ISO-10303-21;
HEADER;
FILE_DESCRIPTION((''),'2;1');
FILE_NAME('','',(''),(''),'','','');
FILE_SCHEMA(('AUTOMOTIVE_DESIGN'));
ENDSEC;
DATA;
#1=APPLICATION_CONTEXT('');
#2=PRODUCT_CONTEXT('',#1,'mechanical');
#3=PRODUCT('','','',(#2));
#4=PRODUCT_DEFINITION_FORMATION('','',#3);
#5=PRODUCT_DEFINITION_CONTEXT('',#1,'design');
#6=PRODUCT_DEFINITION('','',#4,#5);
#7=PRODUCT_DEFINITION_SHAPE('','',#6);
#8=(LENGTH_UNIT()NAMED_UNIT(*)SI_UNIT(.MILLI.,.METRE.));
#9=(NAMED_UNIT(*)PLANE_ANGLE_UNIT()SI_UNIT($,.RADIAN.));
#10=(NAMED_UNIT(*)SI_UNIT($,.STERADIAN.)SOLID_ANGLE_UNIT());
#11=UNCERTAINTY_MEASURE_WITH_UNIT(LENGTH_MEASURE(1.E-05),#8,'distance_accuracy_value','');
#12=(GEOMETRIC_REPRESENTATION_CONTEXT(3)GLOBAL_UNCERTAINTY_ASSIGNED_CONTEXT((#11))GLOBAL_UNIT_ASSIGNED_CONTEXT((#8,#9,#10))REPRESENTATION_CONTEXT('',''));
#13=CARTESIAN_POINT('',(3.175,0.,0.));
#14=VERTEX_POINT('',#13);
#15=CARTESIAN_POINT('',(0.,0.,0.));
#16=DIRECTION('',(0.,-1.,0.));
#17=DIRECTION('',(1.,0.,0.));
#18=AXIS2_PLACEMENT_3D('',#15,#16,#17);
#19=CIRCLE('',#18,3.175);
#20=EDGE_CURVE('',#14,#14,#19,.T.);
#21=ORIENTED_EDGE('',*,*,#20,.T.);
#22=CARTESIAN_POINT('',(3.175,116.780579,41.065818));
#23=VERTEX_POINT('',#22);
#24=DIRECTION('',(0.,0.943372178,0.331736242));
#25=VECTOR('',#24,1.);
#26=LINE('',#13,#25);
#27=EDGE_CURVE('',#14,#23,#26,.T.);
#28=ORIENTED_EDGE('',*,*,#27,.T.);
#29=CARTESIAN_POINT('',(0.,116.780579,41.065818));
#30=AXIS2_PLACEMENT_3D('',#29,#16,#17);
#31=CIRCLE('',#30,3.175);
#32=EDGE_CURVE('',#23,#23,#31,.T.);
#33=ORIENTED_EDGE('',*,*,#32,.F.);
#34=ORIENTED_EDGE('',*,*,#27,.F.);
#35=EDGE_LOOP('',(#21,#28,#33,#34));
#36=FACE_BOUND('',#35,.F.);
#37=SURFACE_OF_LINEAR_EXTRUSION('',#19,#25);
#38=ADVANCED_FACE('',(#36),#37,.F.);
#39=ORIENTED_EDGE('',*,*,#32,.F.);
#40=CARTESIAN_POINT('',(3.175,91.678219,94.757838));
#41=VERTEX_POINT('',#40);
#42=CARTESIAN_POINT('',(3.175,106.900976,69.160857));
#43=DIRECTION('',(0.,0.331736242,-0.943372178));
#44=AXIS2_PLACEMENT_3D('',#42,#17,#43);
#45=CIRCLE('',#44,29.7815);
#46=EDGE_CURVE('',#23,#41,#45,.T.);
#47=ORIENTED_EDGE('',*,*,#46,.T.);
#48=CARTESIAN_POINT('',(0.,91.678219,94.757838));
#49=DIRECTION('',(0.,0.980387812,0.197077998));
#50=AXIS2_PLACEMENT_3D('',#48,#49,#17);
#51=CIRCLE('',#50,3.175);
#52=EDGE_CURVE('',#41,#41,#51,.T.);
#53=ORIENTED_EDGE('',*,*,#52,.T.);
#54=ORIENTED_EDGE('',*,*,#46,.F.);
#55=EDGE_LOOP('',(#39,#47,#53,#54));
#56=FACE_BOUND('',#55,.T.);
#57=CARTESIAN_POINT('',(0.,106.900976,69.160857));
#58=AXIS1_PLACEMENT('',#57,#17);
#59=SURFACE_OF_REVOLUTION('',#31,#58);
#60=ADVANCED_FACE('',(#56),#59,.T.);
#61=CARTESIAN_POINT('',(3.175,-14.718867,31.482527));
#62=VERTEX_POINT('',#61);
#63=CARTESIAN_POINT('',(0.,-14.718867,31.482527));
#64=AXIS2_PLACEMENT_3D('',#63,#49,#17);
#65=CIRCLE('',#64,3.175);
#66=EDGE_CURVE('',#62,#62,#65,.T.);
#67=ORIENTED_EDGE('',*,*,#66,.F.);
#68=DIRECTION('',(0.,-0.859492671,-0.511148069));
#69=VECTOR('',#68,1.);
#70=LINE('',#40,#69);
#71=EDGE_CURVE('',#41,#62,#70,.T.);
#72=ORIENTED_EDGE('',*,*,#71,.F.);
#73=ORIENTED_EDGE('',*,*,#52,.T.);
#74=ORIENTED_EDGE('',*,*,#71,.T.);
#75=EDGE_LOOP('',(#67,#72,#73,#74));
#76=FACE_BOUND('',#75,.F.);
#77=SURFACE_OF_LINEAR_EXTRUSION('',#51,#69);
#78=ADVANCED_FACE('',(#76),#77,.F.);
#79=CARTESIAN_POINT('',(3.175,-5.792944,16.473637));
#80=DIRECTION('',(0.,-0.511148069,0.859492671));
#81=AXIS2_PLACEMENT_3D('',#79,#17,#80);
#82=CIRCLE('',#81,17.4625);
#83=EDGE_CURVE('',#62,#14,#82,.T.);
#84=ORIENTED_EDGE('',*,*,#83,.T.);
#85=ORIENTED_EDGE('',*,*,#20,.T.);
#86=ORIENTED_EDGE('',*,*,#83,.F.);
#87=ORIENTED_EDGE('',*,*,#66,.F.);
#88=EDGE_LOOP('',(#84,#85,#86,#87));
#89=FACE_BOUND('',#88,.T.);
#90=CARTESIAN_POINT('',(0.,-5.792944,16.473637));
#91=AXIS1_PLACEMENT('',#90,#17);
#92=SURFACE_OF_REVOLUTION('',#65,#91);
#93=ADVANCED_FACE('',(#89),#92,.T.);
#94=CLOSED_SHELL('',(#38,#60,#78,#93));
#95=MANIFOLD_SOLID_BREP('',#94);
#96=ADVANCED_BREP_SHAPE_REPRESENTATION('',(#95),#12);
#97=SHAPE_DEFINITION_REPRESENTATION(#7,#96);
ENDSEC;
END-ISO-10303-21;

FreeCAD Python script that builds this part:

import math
import FreeCAD as App
import Part
import Sketcher

V = App.Vector
Q = App.Units.Quantity

doc = App.newDocument("Part")
body = doc.addObject("PartDesign::Body", "Body")

# Sketch on XZ plane
sketch1 = body.newObject("Sketcher::SketchObject", "Sketch")
sketch1.AttachmentSupport = (doc.getObject("XZ_Plane"), [""])
sketch1.MapMode = "FlatFace"
sketch1.addGeometry(Part.Circle(V(0, 0, 0), V(0, 0, 1), 3.2), False)
sketch1.addConstraint(Sketcher.Constraint("Coincident", 0, 3, -1, 1))
sketch1.addConstraint(Sketcher.Constraint("Diameter", 0, Q("0.25 in")))

# Sketch on YZ plane
sketch2 = body.newObject("Sketcher::SketchObject", "Sketch001")
sketch2.AttachmentSupport = (doc.getObject("YZ_Plane"), [""])
sketch2.MapMode = "FlatFace"
sketch2.addGeometry(Part.LineSegment(V(0, 0, 0), V(117, 41, 0)), False)
sketch2.addGeometry(Part.ArcOfCircle(Part.Circle(V(107, 69, 0), V(0, 0, 1), 30), math.radians(-71), math.radians(121)), False)
sketch2.addGeometry(Part.LineSegment(V(92, 95, 0), V(-15, 31, 0)), False)
sketch2.addGeometry(Part.ArcOfCircle(Part.Circle(V(-6, 16, 0), V(0, 0, 1), 17), math.radians(121), math.radians(289)), False)
sketch2.addConstraint(Sketcher.Constraint("Tangent", 0, 2, 1, 1))
sketch2.addConstraint(Sketcher.Constraint("Tangent", 1, 2, 2, 1))
sketch2.addConstraint(Sketcher.Constraint("Tangent", 2, 2, 3, 1))
sketch2.addConstraint(Sketcher.Constraint("Tangent", 3, 2, 0, 1))
sketch2.addConstraint(Sketcher.Constraint("Coincident", 3, 2, -1, 1))
sketch2.addConstraint(Sketcher.Constraint("Radius", 3, Q("0.6875 in")))
sketch2.addConstraint(Sketcher.Constraint("Radius", 1, Q("1.1725 in")))
sketch2.addConstraint(Sketcher.Constraint("DistanceX", -1, 1, 1, 3, Q("4.2086998 in")))
sketch2.addConstraint(Sketcher.Constraint("DistanceY", 3, 3, 1, 3, Q("2.0743 in")))
doc.recompute()

additivepipe = body.newObject("PartDesign::AdditivePipe", "AdditivePipe")
additivepipe.Profile = sketch1
additivepipe.Spine = (sketch2, ["Edge1", "Edge2", "Edge3", "Edge4"])

doc.recompute()
